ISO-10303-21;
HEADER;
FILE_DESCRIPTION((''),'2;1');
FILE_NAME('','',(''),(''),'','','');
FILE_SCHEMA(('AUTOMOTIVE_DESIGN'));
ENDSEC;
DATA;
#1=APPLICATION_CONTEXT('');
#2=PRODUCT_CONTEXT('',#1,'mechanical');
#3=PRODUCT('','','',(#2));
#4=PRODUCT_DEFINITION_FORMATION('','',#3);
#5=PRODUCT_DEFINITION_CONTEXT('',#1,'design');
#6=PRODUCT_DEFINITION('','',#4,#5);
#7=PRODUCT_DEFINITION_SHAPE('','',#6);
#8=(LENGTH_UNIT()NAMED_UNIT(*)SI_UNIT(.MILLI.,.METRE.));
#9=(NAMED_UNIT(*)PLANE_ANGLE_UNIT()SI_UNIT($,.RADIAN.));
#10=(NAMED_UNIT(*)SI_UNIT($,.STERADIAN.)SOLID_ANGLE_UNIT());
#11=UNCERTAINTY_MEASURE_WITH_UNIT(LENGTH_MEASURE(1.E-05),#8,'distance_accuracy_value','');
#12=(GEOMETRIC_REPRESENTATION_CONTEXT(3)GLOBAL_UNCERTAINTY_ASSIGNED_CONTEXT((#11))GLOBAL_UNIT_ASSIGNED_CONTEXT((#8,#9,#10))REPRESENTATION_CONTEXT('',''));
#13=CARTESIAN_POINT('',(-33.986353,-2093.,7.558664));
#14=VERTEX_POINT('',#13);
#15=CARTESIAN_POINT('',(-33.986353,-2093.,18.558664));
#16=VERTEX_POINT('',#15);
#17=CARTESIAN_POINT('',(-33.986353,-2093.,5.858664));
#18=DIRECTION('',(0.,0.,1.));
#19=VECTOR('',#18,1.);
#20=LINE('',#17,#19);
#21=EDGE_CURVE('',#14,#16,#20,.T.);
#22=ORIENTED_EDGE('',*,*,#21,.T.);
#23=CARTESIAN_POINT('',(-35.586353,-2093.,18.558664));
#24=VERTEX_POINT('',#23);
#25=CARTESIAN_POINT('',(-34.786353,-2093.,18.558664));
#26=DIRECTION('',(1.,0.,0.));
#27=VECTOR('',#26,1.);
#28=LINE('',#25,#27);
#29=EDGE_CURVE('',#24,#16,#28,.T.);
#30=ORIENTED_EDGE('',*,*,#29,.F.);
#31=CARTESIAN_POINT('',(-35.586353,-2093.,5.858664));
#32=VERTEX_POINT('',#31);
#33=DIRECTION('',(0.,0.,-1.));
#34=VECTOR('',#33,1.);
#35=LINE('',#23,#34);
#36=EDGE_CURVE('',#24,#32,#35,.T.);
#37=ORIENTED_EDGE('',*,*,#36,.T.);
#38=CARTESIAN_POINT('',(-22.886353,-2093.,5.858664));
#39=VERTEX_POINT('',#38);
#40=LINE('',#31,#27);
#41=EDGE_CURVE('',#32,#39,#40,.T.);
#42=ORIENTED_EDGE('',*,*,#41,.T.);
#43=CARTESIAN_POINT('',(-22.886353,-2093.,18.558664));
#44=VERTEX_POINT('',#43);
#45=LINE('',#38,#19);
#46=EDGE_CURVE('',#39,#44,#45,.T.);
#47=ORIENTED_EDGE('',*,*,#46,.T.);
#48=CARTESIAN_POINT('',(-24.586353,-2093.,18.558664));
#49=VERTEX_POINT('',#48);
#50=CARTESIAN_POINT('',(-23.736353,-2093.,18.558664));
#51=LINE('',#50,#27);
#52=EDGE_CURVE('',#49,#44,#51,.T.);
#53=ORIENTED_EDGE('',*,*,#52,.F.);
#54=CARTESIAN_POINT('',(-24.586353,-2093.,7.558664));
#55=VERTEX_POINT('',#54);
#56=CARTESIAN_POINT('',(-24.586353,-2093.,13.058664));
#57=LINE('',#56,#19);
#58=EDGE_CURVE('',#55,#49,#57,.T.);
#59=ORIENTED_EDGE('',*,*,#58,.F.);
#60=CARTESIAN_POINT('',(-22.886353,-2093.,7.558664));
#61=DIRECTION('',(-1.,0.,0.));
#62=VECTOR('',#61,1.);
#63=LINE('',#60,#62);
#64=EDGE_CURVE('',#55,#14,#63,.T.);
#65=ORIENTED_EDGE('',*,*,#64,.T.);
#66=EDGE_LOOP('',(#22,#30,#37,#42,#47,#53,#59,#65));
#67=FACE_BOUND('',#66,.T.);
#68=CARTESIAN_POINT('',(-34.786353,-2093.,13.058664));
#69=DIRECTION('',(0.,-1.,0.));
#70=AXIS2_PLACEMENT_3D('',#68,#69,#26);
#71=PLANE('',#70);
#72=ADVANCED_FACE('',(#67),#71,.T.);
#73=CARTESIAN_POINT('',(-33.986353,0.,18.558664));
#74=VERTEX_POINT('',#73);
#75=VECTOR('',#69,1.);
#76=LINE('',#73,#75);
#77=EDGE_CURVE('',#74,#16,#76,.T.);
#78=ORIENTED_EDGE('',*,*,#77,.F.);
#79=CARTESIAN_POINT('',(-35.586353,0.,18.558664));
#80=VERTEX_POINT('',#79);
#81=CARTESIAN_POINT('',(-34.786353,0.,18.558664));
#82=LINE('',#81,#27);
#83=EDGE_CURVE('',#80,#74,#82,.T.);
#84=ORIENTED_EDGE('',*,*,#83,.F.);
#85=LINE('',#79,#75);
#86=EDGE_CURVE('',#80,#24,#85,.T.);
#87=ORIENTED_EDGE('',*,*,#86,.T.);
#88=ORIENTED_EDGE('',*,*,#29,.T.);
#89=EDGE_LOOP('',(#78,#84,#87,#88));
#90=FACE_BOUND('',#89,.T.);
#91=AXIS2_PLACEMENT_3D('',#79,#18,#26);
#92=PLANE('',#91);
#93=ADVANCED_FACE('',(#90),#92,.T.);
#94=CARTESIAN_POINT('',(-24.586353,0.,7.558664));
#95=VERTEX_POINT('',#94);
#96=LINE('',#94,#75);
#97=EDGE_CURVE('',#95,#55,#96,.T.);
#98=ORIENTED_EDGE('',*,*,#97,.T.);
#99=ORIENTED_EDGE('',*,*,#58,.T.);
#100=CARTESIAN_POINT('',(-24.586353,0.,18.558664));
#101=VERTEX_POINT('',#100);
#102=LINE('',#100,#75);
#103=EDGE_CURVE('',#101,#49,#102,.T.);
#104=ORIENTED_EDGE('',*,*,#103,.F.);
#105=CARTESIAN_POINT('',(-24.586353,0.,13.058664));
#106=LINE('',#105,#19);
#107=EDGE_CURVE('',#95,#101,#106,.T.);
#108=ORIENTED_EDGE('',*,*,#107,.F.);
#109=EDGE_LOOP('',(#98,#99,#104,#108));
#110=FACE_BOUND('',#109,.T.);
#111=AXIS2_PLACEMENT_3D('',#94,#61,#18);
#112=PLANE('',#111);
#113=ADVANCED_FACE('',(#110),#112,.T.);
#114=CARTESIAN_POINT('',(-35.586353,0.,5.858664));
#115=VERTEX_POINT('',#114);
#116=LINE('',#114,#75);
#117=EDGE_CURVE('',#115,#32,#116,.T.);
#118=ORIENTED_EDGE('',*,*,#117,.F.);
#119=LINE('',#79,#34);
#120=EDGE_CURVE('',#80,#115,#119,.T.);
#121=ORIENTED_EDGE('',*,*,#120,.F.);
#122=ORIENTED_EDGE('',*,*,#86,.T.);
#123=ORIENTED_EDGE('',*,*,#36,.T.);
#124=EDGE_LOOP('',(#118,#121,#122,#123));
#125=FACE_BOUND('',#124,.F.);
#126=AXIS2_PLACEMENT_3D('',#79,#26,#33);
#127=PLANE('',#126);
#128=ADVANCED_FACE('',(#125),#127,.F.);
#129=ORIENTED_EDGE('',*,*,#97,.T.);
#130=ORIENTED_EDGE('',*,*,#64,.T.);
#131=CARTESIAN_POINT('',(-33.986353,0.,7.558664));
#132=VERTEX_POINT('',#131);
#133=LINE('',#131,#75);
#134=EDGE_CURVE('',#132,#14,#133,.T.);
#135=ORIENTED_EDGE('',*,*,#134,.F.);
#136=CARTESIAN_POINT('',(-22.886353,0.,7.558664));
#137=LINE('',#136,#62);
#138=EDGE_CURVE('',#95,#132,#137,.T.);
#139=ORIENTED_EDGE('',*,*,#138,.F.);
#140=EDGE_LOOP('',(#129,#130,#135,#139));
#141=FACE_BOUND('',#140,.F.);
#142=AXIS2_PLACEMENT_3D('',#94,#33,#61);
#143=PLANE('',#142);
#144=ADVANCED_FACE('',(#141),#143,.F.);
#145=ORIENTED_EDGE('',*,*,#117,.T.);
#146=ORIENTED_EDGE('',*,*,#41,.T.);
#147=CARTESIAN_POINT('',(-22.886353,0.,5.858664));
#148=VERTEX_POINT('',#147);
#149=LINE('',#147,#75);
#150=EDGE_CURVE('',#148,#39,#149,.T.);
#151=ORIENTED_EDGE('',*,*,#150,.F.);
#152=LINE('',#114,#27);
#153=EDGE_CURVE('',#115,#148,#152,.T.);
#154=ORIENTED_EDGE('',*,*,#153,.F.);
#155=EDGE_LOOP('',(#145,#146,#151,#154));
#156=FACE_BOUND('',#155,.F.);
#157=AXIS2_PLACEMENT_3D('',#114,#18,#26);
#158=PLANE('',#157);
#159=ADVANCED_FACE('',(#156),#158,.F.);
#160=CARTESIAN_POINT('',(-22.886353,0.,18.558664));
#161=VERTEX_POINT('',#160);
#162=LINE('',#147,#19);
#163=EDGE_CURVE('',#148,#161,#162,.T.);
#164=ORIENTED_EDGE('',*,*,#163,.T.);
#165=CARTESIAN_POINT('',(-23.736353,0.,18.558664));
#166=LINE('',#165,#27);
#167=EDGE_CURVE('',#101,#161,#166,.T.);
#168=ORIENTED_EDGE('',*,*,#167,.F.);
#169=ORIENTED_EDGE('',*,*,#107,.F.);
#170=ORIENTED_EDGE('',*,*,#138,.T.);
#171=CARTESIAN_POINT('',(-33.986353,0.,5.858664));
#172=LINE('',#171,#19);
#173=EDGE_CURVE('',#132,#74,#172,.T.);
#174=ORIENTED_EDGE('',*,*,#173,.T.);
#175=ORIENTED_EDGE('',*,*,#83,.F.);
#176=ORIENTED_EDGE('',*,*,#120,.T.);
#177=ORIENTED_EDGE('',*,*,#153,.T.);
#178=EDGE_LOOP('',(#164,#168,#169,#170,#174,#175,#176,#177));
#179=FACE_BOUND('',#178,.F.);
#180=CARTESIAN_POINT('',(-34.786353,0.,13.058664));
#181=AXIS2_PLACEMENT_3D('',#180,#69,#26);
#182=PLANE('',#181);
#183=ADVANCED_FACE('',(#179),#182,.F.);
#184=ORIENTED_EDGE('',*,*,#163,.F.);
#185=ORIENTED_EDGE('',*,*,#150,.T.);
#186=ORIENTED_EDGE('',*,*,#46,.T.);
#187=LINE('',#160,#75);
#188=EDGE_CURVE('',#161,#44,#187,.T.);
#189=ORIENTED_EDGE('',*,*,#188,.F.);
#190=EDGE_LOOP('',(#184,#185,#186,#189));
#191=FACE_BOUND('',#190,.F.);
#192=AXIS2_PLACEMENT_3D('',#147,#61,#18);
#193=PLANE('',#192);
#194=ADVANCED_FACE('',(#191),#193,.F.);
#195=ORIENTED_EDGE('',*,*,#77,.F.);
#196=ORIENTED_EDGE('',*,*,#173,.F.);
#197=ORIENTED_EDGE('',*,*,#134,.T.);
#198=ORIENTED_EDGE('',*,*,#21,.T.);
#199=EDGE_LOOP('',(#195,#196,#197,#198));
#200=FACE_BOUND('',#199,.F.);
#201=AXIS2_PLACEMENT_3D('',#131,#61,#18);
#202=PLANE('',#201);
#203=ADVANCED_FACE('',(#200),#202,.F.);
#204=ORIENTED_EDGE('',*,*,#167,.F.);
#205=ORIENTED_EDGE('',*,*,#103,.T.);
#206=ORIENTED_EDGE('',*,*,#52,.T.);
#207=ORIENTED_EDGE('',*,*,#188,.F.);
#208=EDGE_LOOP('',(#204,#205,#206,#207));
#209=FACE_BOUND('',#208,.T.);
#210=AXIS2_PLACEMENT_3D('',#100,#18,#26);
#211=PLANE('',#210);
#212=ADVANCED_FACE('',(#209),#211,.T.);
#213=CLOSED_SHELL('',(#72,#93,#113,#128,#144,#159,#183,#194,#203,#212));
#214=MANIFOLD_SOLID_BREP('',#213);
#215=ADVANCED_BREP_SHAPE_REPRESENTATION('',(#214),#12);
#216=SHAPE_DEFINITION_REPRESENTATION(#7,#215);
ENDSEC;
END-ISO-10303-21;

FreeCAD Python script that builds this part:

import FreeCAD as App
import Part
import Sketcher

V = App.Vector


def add_polygon(sketch, points):
    """Adds a closed chain of lines whose ends are joined by coincident constraints."""
    first, n = sketch.GeometryCount, len(points)
    for a, b in zip(points, points[1:] + points[:1]):
        sketch.addGeometry(Part.LineSegment(App.Vector(*a, 0), App.Vector(*b, 0)), False)
    for i in range(n):
        sketch.addConstraint(Sketcher.Constraint("Coincident", first + i, 2, first + (i + 1) % n, 1))

doc = App.newDocument("Part")
body = doc.addObject("PartDesign::Body", "Body")

sketch1 = body.newObject("Sketcher::SketchObject", "Sketch")
sketch1.AttachmentSupport = (doc.getObject("XZ_Plane"), [""])
sketch1.MapMode = "FlatFace"
add_polygon(sketch1, [(-35.6, 18.6), (-35.6, 5.9), (-22.9, 5.9), (-22.9, 18.6), (-24.6, 18.6), (-24.6, 7.6), (-34, 7.6), (-34, 18.6)])
sketch1.addConstraint(Sketcher.Constraint("Vertical", 0))
sketch1.addConstraint(Sketcher.Constraint("Horizontal", 1))
sketch1.addConstraint(Sketcher.Constraint("Vertical", 2))
sketch1.addConstraint(Sketcher.Constraint("Horizontal", 3))
sketch1.addConstraint(Sketcher.Constraint("Vertical", 4))
sketch1.addConstraint(Sketcher.Constraint("Horizontal", 5))
sketch1.addConstraint(Sketcher.Constraint("Vertical", 6))
sketch1.addConstraint(Sketcher.Constraint("Horizontal", 7))
sketch1.addConstraint(Sketcher.Constraint("Horizontal", 3, 2, 6, 2))
sketch1.addConstraint(Sketcher.Constraint("Equal", 1, 0))
sketch1.addConstraint(Sketcher.Constraint("DistanceY", 4, 2, 4, 1, 11.0))
sketch1.addConstraint(Sketcher.Constraint("DistanceX", 1, 1, 1, 2, 12.7))
sketch1.addConstraint(Sketcher.Constraint("DistanceX", 3, 2, 3, 1, 1.7))
sketch1.addConstraint(Sketcher.Constraint("DistanceX", 5, 2, 5, 1, 9.4))
sketch1.addConstraint(Sketcher.Constraint("DistanceX", 0, 2, -1, 1, 35.586353))
sketch1.addConstraint(Sketcher.Constraint("DistanceY", -1, 1, 0, 2, 5.858664))
pad1 = body.newObject("PartDesign::Pad", "Pad")
pad1.Profile = sketch1
pad1.Length = 2093

doc.recompute()
